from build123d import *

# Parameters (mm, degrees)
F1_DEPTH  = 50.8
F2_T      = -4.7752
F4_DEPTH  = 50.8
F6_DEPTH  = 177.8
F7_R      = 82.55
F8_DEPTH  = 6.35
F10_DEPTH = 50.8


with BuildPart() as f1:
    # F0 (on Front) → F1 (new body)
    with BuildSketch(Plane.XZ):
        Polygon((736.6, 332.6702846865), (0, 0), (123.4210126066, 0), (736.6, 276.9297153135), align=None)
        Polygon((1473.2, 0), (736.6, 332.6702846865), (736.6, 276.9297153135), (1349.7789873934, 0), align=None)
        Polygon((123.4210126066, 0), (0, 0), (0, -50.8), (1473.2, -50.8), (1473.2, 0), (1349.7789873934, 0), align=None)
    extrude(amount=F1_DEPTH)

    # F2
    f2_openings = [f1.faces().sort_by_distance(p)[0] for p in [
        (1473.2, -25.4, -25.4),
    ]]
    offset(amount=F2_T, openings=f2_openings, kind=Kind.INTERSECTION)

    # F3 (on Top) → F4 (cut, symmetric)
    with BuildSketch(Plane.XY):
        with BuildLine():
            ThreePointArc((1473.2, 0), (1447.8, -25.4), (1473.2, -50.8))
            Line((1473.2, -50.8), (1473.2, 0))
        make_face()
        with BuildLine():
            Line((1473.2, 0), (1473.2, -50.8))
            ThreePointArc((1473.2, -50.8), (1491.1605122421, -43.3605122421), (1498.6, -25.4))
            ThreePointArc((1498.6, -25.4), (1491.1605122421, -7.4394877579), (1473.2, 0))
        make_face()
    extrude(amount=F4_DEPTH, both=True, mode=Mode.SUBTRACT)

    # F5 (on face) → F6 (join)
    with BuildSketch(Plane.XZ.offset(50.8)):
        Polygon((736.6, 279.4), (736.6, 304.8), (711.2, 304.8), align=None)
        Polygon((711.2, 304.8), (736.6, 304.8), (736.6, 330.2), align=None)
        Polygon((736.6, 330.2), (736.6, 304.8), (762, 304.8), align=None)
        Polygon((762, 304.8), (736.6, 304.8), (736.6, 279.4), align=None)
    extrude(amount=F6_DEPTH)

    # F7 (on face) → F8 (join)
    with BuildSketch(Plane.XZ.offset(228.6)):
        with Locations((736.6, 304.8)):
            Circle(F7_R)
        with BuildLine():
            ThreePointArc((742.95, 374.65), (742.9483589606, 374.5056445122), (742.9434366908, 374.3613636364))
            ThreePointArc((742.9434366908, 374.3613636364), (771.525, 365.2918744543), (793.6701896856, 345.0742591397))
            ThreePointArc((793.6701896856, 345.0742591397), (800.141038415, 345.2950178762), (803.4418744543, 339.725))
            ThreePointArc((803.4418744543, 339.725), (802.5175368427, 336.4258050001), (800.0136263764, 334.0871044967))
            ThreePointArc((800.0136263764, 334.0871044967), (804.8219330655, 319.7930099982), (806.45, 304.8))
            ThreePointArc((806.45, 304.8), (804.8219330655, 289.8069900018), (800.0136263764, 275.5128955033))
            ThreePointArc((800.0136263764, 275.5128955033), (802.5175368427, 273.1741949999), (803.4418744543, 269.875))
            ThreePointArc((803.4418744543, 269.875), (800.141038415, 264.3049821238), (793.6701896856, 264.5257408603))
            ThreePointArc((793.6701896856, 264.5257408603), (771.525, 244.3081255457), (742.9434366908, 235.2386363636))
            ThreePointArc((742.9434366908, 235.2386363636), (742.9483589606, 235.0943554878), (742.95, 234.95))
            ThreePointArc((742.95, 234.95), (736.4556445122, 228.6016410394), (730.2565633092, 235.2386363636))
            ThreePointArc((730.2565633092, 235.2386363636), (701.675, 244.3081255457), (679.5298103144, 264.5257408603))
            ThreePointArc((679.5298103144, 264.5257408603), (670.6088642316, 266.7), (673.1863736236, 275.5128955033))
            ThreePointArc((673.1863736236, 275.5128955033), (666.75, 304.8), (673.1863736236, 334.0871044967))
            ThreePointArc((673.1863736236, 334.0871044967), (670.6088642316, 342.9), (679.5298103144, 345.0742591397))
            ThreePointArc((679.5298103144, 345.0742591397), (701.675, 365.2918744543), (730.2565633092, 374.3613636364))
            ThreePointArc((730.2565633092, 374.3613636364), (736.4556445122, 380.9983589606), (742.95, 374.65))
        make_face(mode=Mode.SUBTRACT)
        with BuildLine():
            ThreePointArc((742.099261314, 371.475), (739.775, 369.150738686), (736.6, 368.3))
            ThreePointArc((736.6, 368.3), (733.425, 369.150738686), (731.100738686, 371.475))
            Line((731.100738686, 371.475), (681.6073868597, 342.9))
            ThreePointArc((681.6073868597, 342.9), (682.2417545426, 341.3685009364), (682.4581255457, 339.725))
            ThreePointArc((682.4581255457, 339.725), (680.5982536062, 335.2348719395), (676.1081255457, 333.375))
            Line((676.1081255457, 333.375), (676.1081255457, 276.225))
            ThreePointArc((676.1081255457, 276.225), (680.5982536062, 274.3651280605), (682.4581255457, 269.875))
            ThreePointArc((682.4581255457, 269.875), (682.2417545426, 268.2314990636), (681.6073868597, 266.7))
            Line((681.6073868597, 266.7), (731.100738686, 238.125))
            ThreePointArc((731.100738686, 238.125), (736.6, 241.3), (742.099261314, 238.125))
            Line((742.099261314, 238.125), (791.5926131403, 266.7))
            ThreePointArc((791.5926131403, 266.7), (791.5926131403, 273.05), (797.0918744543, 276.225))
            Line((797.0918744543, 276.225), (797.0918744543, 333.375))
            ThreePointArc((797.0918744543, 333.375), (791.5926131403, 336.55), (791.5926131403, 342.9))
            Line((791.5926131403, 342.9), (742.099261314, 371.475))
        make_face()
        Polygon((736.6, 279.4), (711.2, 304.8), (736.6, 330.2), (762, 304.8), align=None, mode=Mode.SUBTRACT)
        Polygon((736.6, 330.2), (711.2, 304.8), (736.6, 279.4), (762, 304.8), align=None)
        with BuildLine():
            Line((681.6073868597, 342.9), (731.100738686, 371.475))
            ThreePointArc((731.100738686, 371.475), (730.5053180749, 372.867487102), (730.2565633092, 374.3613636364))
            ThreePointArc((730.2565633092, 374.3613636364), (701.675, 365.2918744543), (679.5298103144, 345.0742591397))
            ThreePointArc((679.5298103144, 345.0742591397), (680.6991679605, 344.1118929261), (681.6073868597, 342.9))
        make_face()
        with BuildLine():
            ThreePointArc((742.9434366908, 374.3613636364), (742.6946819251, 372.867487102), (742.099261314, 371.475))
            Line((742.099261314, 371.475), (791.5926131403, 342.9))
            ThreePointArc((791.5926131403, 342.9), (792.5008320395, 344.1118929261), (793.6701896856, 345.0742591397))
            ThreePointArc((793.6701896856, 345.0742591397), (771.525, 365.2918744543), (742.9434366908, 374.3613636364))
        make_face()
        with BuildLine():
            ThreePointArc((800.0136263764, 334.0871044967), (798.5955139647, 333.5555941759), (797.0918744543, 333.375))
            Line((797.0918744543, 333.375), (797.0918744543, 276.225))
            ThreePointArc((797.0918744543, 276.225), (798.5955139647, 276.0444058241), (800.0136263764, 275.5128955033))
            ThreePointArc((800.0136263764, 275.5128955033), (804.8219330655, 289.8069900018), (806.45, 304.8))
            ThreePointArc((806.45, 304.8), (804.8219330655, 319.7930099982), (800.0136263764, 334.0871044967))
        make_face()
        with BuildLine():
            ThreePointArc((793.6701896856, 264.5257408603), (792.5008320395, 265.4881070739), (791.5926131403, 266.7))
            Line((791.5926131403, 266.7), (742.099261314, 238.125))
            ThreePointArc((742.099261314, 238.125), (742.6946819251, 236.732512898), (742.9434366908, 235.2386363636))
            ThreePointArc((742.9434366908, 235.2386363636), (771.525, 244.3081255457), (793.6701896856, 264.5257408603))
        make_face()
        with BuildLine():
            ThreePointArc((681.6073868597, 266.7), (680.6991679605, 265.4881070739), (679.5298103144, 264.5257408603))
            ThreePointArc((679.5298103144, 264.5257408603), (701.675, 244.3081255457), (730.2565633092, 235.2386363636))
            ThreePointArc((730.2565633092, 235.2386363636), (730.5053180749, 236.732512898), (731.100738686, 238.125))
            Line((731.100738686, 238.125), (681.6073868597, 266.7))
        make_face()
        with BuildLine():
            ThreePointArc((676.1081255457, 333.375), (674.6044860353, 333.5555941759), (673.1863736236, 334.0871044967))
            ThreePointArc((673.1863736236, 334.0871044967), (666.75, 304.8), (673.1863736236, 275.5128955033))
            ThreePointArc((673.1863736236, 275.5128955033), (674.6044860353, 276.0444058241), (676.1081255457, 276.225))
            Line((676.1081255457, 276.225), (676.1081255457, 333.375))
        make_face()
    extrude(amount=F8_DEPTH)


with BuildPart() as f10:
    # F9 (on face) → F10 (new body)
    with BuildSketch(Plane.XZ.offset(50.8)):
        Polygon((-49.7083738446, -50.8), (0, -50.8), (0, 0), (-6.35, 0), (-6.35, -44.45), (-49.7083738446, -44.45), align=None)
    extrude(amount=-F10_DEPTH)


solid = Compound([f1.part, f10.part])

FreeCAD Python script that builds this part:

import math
import FreeCAD as App
import Part
import Sketcher

V = App.Vector
Q = App.Units.Quantity


def faces_at(feature, points):
    """Names of the faces that lie closest to the given points."""
    faces = feature.Shape.Faces
    near = lambda p: min(range(len(faces)), key=lambda i: faces[i].distToShape(Part.Vertex(*p))[0])
    return sorted({f"Face{near(p) + 1}" for p in points})


def add_polygon(sketch, points):
    """Adds a closed chain of lines whose ends are joined by coincident constraints."""
    first, n = sketch.GeometryCount, len(points)
    for a, b in zip(points, points[1:] + points[:1]):
        sketch.addGeometry(Part.LineSegment(App.Vector(*a, 0), App.Vector(*b, 0)), False)
    for i in range(n):
        sketch.addConstraint(Sketcher.Constraint("Coincident", first + i, 2, first + (i + 1) % n, 1))

doc = App.newDocument("Part")
body = doc.addObject("PartDesign::Body", "Body")

# Sketch on XZ plane
sketch1 = doc.addObject("Sketcher::SketchObject", "Sketch")
body.addObject(sketch1)
sketch1.AttachmentSupport = (doc.XZ_Plane, [""])
sketch1.MapMode = "FlatFace"
add_polygon(sketch1, [(737, 333), (0, 0), (0, -51), (1473, -51), (1473, 0)])  # lines 0-4
add_polygon(sketch1, [(123, 0), (737, 277), (1350, 0)])  # lines 5-7
sketch1.addConstraint([
    Sketcher.Constraint("Vertical", 1),
    Sketcher.Constraint("Horizontal", 2),
    Sketcher.Constraint("Vertical", 3),
    Sketcher.Constraint("Horizontal", 7),
    Sketcher.Constraint("Coincident", 0, 2, -1, 1),
    Sketcher.Constraint("PointOnObject", 3, 2, -1),
    Sketcher.Constraint("PointOnObject", 6, 2, -1),
    Sketcher.Constraint("Parallel", 0, 5),
    Sketcher.Constraint("Parallel", 4, 6),
    Sketcher.Constraint("Vertical", 4, 2, 5, 2),
    Sketcher.Constraint("Equal", 0, 4),
    Sketcher.Constraint("DistanceX", 2, 1, 2, 2, Q("58 in")),
    Sketcher.Constraint("DistanceY", 1, 2, 1, 1, Q("2 in")),
    Sketcher.Constraint("DistanceX", 7, 2, 7, 1, 1226.357975),
    Sketcher.Constraint("DistanceY", 5, 2, 4, 2, 55.740569),
])
pad1 = doc.addObject("PartDesign::Pad", "Pad")
body.addObject(pad1)
pad1.Profile = sketch1
pad1.Length = Q("2 in")
doc.recompute()

thickness = doc.addObject("PartDesign::Thickness", "Thickness")
body.addObject(thickness)
thickness.Base = (pad1, faces_at(pad1, [(1473.2, -25.4, -25.4)]))
thickness.Value = Q("0.188 in")
thickness.Reversed = True
thickness.Join = "Intersection"

# Sketch on XY plane
sketch2 = doc.addObject("Sketcher::SketchObject", "Sketch001")
body.addObject(sketch2)
sketch2.AttachmentSupport = (doc.XY_Plane, [""])
sketch2.MapMode = "FlatFace"
sketch2.addGeometry([
    Part.ArcOfCircle(Part.Circle(V(1473, -25, 0), V(0, 0, 1), 25), math.radians(90), math.radians(270)),
    Part.ArcOfCircle(Part.Circle(V(1473, -25, 0), V(0, 0, 1), 25), math.radians(-90), math.radians(0)),
    Part.ArcOfCircle(Part.Circle(V(1473, -25, 0), V(0, 0, 1), 25), math.radians(0), math.radians(90)),
], False)
sketch2.addConstraint([
    Sketcher.Constraint("Tangent", 0, 2, 1, 1),
    Sketcher.Constraint("Tangent", 1, 2, 2, 1),
    Sketcher.Constraint("Tangent", 2, 2, 0, 1),
    Sketcher.Constraint("PointOnObject", 2, 2, -1),
    Sketcher.Constraint("Horizontal", 2, 3, 1, 2),
    Sketcher.Constraint("Vertical", 2, 3, 0, 2),
    Sketcher.Constraint("Vertical", 0, 2, 2, 2),
    Sketcher.Constraint("Radius", 0, Q("1 in")),
    Sketcher.Constraint("DistanceX", -1, 1, 0, 3, Q("58 in")),
])
pocket1 = doc.addObject("PartDesign::Pocket", "Pocket")
body.addObject(pocket1)
pocket1.Profile = sketch2
pocket1.Length = Q("4 in")
pocket1.Midplane = True

# Sketch on XZ plane
sketch3 = doc.addObject("Sketcher::SketchObject", "Sketch002")
body.addObject(sketch3)
sketch3.AttachmentSupport = (doc.XZ_Plane, [""])
sketch3.MapMode = "FlatFace"
sketch3.AttachmentOffset = App.Placement(V(0, 0, 2 * 25.4), App.Rotation())
add_polygon(sketch3, [(762, 305), (737, 330), (711, 305), (737, 279)])  # lines 0-3
sketch3.addConstraint([
    Sketcher.Constraint("Perpendicular", 0, 1),
    Sketcher.Constraint("Perpendicular", 1, 2),
    Sketcher.Constraint("Perpendicular", 2, 3),
    Sketcher.Constraint("Horizontal", 1, 2, 3, 2),
    Sketcher.Constraint("Vertical", 0, 2, 2, 2),
    Sketcher.Constraint("DistanceX", -1, 1, 0, 2, Q("29 in")),
    Sketcher.Constraint("DistanceY", -1, 1, 0, 2, Q("13 in")),
    Sketcher.Constraint("DistanceX", -1, 1, 1, 2, Q("28 in")),
])
pad2 = doc.addObject("PartDesign::Pad", "Pad001")
body.addObject(pad2)
pad2.Profile = sketch3
pad2.Length = Q("7 in")

# Sketch on XZ plane
sketch4 = doc.addObject("Sketcher::SketchObject", "Sketch003")
body.addObject(sketch4)
sketch4.AttachmentSupport = (doc.XZ_Plane, [""])
sketch4.MapMode = "FlatFace"
sketch4.AttachmentOffset = App.Placement(V(0, 0, 9 * 25.4), App.Rotation())
sketch4.addGeometry([
    Part.Circle(V(736.6, 304.8, 0), V(0, 0, 1), 82.55),  # 0
    Part.ArcOfCircle(Part.Circle(V(736.6, 374.65, 0), V(0, 0, 1), 6.35), math.radians(0), math.radians(183)),  # 1
    Part.ArcOfCircle(Part.Circle(V(736.6, 374.65, 0), V(0, 0, 1), 6.35), math.radians(-2.61), math.radians(0)),  # 2
    Part.ArcOfCircle(Part.Circle(V(736.6, 374.65, 0), V(0, 0, 1), 6.35), math.radians(-30), math.radians(-3)),  # 3
    Part.ArcOfCircle(Part.Circle(V(736.6, 374.65, 0), V(0, 0, 1), 6.35), math.radians(-90), math.radians(-30)),  # 4
    Part.ArcOfCircle(Part.Circle(V(736.6, 374.65, 0), V(0, 0, 1), 6.35), math.radians(-150), math.radians(-90)),  # 5
    Part.ArcOfCircle(Part.Circle(V(736.6, 374.65, 0), V(0, 0, 1), 6.35), math.radians(-177), math.radians(-150)),  # 6
    Part.ArcOfCircle(Part.Circle(V(797.09, 339.73, 0), V(0, 0, 1), 6.35), math.radians(0), math.radians(123)),  # 7
    Part.ArcOfCircle(Part.Circle(V(797.09, 339.73, 0), V(0, 0, 1), 6.35), math.radians(-63), math.radians(0)),  # 8
    Part.ArcOfCircle(Part.Circle(V(797.09, 339.73, 0), V(0, 0, 1), 6.35), math.radians(-90), math.radians(-63)),  # 9
    Part.ArcOfCircle(Part.Circle(V(797.09, 339.73, 0), V(0, 0, 1), 6.35), math.radians(150), math.radians(270)),  # 10
    Part.ArcOfCircle(Part.Circle(V(797.09, 339.73, 0), V(0, 0, 1), 6.35), math.radians(123), math.radians(150)),  # 11
    Part.ArcOfCircle(Part.Circle(V(797.09, 269.88, 0), V(0, 0, 1), 6.35), math.radians(0), math.radians(63)),  # 12
    Part.ArcOfCircle(Part.Circle(V(797.09, 269.88, 0), V(0, 0, 1), 6.35), math.radians(-123), math.radians(0)),  # 13
    Part.ArcOfCircle(Part.Circle(V(797.09, 269.88, 0), V(0, 0, 1), 6.35), math.radians(-150), math.radians(-123)),  # 14
    Part.ArcOfCircle(Part.Circle(V(797.09, 269.88, 0), V(0, 0, 1), 6.35), math.radians(90), math.radians(210)),  # 15
    Part.ArcOfCircle(Part.Circle(V(797.09, 269.87, 0), V(0, 0, 1), 6.35), math.radians(63), math.radians(90)),  # 16
    Part.ArcOfCircle(Part.Circle(V(736.6, 234.95, 0), V(0, 0, 1), 6.35), math.radians(0), math.radians(2.61)),  # 17
    Part.ArcOfCircle(Part.Circle(V(736.6, 234.95, 0), V(0, 0, 1), 6.35), math.radians(177), math.radians(360)),  # 18
    Part.ArcOfCircle(Part.Circle(V(736.6, 234.95, 0), V(0, 0, 1), 6.35), math.radians(150), math.radians(177)),  # 19
    Part.ArcOfCircle(Part.Circle(V(736.6, 234.95, 0), V(0, 0, 1), 6.35), math.radians(30), math.radians(150)),  # 20
    Part.ArcOfCircle(Part.Circle(V(736.6, 234.95, 0), V(0, 0, 1), 6.35), math.radians(3), math.radians(30)),  # 21
    Part.ArcOfCircle(Part.Circle(V(676.11, 269.88, 0), V(0, 0, 1), 6.35), math.radians(117), math.radians(303)),  # 22
    Part.ArcOfCircle(Part.Circle(V(676.11, 269.87, 0), V(0, 0, 1), 6.35), math.radians(90), math.radians(117)),  # 23
    Part.ArcOfCircle(Part.Circle(V(676.11, 269.88, 0), V(0, 0, 1), 6.35), math.radians(0), math.radians(90)),  # 24
    Part.ArcOfCircle(Part.Circle(V(676.11, 269.88, 0), V(0, 0, 1), 6.35), math.radians(-30), math.radians(0)),  # 25
    Part.ArcOfCircle(Part.Circle(V(676.11, 269.88, 0), V(0, 0, 1), 6.35), math.radians(-57), math.radians(-30)),  # 26
    Part.ArcOfCircle(Part.Circle(V(676.11, 339.73, 0), V(0, 0, 1), 6.35), math.radians(57), math.radians(243)),  # 27
    Part.ArcOfCircle(Part.Circle(V(676.11, 339.73, 0), V(0, 0, 1), 6.35), math.radians(30), math.radians(57)),  # 28
    Part.ArcOfCircle(Part.Circle(V(676.11, 339.73, 0), V(0, 0, 1), 6.35), math.radians(0), math.radians(30)),  # 29
    Part.ArcOfCircle(Part.Circle(V(676.11, 339.73, 0), V(0, 0, 1), 6.35), math.radians(-90), math.radians(0)),  # 30
    Part.ArcOfCircle(Part.Circle(V(676.11, 339.73, 0), V(0, 0, 1), 6.35), math.radians(-117), math.radians(-90)),  # 31
], False)
sketch4.addConstraint([
    Sketcher.Constraint("Tangent", 1, 1, 2, 2),
    Sketcher.Constraint("Tangent", 2, 1, 3, 2),
    Sketcher.Constraint("Tangent", 3, 1, 4, 2),
    Sketcher.Constraint("Tangent", 4, 1, 5, 2),
    Sketcher.Constraint("Tangent", 5, 1, 6, 2),
    Sketcher.Constraint("Tangent", 6, 1, 1, 2),
    Sketcher.Constraint("Tangent", 7, 1, 8, 2),
    Sketcher.Constraint("Tangent", 8, 1, 9, 2),
    Sketcher.Constraint("Tangent", 9, 1, 10, 2),
    Sketcher.Constraint("Tangent", 10, 1, 11, 2),
    Sketcher.Constraint("Tangent", 11, 1, 7, 2),
    Sketcher.Constraint("Tangent", 12, 1, 13, 2),
    Sketcher.Constraint("Tangent", 13, 1, 14, 2),
    Sketcher.Constraint("Tangent", 14, 1, 15, 2),
    Sketcher.Constraint("Tangent", 15, 1, 16, 2),
    Sketcher.Constraint("Tangent", 16, 1, 12, 2),
    Sketcher.Constraint("Tangent", 17, 1, 18, 2),
    Sketcher.Constraint("Tangent", 18, 1, 19, 2),
    Sketcher.Constraint("Tangent", 19, 1, 20, 2),
    Sketcher.Constraint("Tangent", 20, 1, 21, 2),
    Sketcher.Constraint("Tangent", 21, 1, 17, 2),
    Sketcher.Constraint("Tangent", 22, 1, 23, 2),
    Sketcher.Constraint("Tangent", 23, 1, 24, 2),
    Sketcher.Constraint("Tangent", 24, 1, 25, 2),
    Sketcher.Constraint("Tangent", 25, 1, 26, 2),
    Sketcher.Constraint("Tangent", 26, 1, 22, 2),
    Sketcher.Constraint("Tangent", 27, 1, 28, 2),
    Sketcher.Constraint("Tangent", 28, 1, 29, 2),
    Sketcher.Constraint("Tangent", 29, 1, 30, 2),
    Sketcher.Constraint("Tangent", 30, 1, 31, 2),
    Sketcher.Constraint("Tangent", 31, 1, 27, 2),
    Sketcher.Constraint("Coincident", 3, 3, 1, 3),
    Sketcher.Constraint("Coincident", 9, 3, 7, 3),
    Sketcher.Constraint("Coincident", 14, 3, 12, 3),
    Sketcher.Constraint("Coincident", 19, 3, 17, 3),
    Sketcher.Constraint("Coincident", 24, 3, 22, 3),
    Sketcher.Constraint("Coincident", 29, 3, 27, 3),
    Sketcher.Constraint("Equal", 3, 4),
    Sketcher.Constraint("Equal", 6, 7),
    Sketcher.Constraint("Equal", 11, 12),
    Sketcher.Constraint("Equal", 16, 17),
    Sketcher.Constraint("Equal", 21, 22),
    Sketcher.Constraint("Equal", 26, 27),
    Sketcher.Constraint("Horizontal", 16, 3, 22, 3),
    Sketcher.Constraint("Horizontal", 11, 3, 27, 3),
    Sketcher.Constraint("Horizontal", 6, 3, 1, 1),
    Sketcher.Constraint("Horizontal", 3, 1, 5, 1),
    Sketcher.Constraint("Horizontal", 2, 1, 6, 1),
    Sketcher.Constraint("Horizontal", 31, 3, 7, 1),
    Sketcher.Constraint("Horizontal", 26, 3, 12, 1),
    Sketcher.Constraint("Horizontal", 21, 3, 17, 1),
    Sketcher.Constraint("Horizontal", 19, 1, 20, 1),
    Sketcher.Constraint("Horizontal", 18, 1, 21, 1),
    Sketcher.Constraint("Horizontal", 16, 1, 22, 1),
    Sketcher.Constraint("Horizontal", 12, 1, 24, 1),
    Sketcher.Constraint("Horizontal", 14, 1, 25, 1),
    Sketcher.Constraint("Horizontal", 13, 1, 26, 1),
    Sketcher.Constraint("Horizontal", 11, 1, 27, 1),
    Sketcher.Constraint("Horizontal", 10, 1, 28, 1),
    Sketcher.Constraint("Horizontal", 7, 1, 29, 1),
    Sketcher.Constraint("Horizontal", 8, 1, 31, 1),
    Sketcher.Constraint("Vertical", 0, 3, 1, 3),
    Sketcher.Constraint("Vertical", 11, 3, 12, 3),
    Sketcher.Constraint("Vertical", 6, 3, 17, 3),
    Sketcher.Constraint("Vertical", 26, 3, 27, 3),
    Sketcher.Constraint("Vertical", 21, 3, 4, 1),
    Sketcher.Constraint("Vertical", 16, 3, 9, 1),
    Sketcher.Constraint("Vertical", 11, 1, 13, 1),
    Sketcher.Constraint("Vertical", 10, 1, 14, 1),
    Sketcher.Constraint("Vertical", 9, 1, 15, 1),
    Sketcher.Constraint("Vertical", 8, 1, 16, 1),
    Sketcher.Constraint("Vertical", 6, 1, 18, 1),
    Sketcher.Constraint("Vertical", 5, 1, 19, 1),
    Sketcher.Constraint("Vertical", 31, 3, 23, 1),
    Sketcher.Constraint("Vertical", 23, 1, 30, 1),
    Sketcher.Constraint("Diameter", 0, Q("6.5 in")),
    Sketcher.Constraint("Radius", 1, Q("0.25 in")),
    Sketcher.Constraint("DistanceX", -1, 1, 0, 3, Q("29 in")),
    Sketcher.Constraint("DistanceY", -1, 1, 0, 3, Q("12 in")),
    Sketcher.Constraint("DistanceY", -1, 1, 4, 1, Q("14.5 in")),
    Sketcher.Constraint("DistanceY", -1, 1, 10, 1, Q("13.5 in")),
    Sketcher.Constraint("DistanceY", -1, 1, 14, 1, Q("10.5 in")),
    Sketcher.Constraint("DistanceY", -1, 1, 17, 3, Q("9.25 in")),
    Sketcher.Constraint("DistanceY", -1, 1, 7, 3, Q("13.375 in")),
    Sketcher.Constraint("DistanceY", -1, 1, 3, 1, Q("14.625 in")),
    Sketcher.Constraint("DistanceX", -1, 1, 11, 1, 793.67019),
    Sketcher.Constraint("DistanceY", -1, 1, 11, 1, 345.074259),
    Sketcher.Constraint("DistanceX", -1, 1, 26, 1, 679.52981),
    Sketcher.Constraint("DistanceX", -1, 1, 2, 1, 742.943437),
    Sketcher.Constraint("DistanceX", -1, 1, 8, 1, 800.013626),
])
pad3 = doc.addObject("PartDesign::Pad", "Pad002")
body.addObject(pad3)
pad3.Profile = sketch4
pad3.Length = Q("0.25 in")
body2 = doc.addObject("PartDesign::Body", "Body001")

# Sketch on XZ plane
sketch5 = doc.addObject("Sketcher::SketchObject", "Sketch004")
body2.addObject(sketch5)
sketch5.AttachmentSupport = (doc.getObject("XZ_Plane001"), [""])
sketch5.MapMode = "FlatFace"
sketch5.AttachmentOffset = App.Placement(V(0, 0, 2 * 25.4), App.Rotation())
add_polygon(sketch5, [(-50, -51), (0, -51), (0, 0), (-6, 0), (-6, -44), (-50, -44)])  # lines 0-5
sketch5.addConstraint([
    Sketcher.Constraint("Horizontal", 0),
    Sketcher.Constraint("Vertical", 1),
    Sketcher.Constraint("Horizontal", 2),
    Sketcher.Constraint("Vertical", 3),
    Sketcher.Constraint("Horizontal", 4),
    Sketcher.Constraint("Vertical", 5),
    Sketcher.Constraint("Coincident", 1, 2, -1, 1),
    Sketcher.Constraint("Equal", 2, 5),
    Sketcher.Constraint("DistanceY", 1, 1, 1, 2, Q("2 in")),
    Sketcher.Constraint("DistanceX", 2, 2, 2, 1, Q("0.25 in")),
    Sketcher.Constraint("DistanceX", 0, 1, 0, 2, 49.708374),
])
pad4 = doc.addObject("PartDesign::Pad", "Pad003")
body2.addObject(pad4)
pad4.Profile = sketch5
pad4.Length = Q("2 in")
pad4.Reversed = True

doc.recompute()
